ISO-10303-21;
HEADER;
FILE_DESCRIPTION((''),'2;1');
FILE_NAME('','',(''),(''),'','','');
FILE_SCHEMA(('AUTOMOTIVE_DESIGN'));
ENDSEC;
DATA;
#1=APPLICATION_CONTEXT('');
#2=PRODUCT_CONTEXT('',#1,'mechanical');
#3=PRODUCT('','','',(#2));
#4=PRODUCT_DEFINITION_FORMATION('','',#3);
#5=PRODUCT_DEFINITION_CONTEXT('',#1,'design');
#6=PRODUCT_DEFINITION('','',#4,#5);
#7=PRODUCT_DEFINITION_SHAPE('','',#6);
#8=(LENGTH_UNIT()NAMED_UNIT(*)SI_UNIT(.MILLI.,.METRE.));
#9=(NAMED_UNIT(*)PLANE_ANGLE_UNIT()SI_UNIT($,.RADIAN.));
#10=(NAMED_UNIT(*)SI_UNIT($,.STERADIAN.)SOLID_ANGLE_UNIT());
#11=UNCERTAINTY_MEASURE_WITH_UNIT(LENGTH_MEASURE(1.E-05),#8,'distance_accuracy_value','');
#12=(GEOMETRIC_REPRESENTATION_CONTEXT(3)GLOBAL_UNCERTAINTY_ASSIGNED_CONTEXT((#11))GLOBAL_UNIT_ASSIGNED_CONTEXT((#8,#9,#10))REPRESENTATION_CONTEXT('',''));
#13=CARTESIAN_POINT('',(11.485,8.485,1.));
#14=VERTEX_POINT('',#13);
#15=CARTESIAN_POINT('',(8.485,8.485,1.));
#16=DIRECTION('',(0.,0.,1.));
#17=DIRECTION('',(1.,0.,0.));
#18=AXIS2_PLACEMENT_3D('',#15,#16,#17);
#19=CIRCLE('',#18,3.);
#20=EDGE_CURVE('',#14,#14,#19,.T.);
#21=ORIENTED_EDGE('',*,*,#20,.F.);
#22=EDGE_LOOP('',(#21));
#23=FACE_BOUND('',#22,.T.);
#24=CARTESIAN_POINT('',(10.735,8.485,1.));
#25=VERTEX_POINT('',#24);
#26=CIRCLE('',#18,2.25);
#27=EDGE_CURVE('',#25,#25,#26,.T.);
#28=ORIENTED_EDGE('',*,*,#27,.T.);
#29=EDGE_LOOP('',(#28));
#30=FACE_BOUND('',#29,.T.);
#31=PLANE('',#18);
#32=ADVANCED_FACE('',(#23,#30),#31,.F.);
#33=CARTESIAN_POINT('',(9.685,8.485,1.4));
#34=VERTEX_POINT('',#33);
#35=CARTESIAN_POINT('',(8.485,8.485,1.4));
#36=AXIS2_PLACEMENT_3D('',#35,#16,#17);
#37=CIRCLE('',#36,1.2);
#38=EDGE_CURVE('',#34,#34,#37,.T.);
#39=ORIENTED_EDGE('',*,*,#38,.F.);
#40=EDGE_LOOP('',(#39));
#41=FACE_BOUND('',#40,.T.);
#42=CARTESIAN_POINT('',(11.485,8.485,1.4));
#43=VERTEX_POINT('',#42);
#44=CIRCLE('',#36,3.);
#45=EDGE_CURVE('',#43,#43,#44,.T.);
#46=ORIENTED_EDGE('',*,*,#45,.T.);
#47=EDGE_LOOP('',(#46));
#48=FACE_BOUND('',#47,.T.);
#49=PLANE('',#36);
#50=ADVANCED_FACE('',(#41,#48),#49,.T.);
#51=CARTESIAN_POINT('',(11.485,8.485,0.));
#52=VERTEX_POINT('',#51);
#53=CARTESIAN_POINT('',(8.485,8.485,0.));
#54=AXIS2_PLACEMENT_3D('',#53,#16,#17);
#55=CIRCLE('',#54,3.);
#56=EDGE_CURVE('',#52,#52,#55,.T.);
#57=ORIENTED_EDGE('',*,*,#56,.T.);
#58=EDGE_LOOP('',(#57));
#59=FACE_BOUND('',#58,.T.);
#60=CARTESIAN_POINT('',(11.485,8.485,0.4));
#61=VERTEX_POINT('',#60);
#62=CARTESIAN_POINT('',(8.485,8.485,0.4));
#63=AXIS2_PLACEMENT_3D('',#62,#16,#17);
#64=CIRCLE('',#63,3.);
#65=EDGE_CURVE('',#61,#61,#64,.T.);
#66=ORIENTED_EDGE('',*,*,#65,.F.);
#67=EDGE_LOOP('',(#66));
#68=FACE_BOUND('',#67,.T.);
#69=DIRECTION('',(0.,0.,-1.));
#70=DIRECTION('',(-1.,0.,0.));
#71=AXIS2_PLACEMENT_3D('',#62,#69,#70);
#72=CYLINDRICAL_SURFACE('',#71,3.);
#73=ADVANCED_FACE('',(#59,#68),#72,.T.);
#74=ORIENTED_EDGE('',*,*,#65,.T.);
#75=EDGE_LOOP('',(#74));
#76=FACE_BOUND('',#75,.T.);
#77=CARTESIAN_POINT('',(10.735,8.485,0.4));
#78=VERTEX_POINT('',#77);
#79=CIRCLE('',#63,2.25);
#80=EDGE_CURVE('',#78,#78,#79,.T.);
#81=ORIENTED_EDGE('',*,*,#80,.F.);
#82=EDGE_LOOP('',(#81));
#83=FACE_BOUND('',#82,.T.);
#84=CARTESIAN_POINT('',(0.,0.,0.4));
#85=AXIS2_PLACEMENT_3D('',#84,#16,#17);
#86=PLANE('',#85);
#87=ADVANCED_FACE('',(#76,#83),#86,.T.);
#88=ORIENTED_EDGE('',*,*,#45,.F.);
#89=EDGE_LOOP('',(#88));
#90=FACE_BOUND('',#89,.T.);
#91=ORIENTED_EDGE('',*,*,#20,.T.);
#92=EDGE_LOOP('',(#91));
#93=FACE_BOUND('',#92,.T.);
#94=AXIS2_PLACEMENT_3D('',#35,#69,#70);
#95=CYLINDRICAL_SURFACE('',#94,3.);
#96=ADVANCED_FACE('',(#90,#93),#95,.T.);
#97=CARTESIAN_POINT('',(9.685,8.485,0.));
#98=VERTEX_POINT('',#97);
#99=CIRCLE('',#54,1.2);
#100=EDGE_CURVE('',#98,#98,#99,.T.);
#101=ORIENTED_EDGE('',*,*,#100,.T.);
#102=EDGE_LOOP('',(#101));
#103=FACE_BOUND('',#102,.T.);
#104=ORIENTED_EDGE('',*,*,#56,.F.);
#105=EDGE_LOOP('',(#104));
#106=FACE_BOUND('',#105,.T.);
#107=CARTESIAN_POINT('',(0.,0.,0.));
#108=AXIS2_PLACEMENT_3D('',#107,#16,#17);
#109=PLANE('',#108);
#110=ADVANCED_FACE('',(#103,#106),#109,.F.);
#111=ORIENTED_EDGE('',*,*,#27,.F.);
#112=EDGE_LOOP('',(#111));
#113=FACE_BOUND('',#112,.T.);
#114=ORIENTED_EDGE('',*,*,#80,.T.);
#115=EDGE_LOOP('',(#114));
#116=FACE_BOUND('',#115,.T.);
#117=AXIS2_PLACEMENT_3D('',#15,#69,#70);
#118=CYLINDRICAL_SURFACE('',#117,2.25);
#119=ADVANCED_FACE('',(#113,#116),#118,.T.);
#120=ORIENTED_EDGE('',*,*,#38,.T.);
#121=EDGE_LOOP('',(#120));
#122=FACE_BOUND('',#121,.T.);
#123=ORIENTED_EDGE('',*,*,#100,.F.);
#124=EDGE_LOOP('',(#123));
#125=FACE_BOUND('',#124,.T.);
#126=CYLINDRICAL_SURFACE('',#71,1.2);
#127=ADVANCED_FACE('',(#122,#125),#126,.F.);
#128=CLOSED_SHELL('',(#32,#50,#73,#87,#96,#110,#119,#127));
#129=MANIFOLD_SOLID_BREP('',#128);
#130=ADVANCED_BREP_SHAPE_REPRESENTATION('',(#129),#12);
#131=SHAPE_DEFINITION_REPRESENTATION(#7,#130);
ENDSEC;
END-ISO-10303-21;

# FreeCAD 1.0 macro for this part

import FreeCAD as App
import Part
import Sketcher

V = App.Vector
Q = App.Units.Quantity

doc = App.newDocument("Part")
body = doc.addObject("PartDesign::Body", "Body")

# Sketch on XY plane
sketch1 = body.newObject("Sketcher::SketchObject", "Sketch")
sketch1.AttachmentSupport = (doc.getObject("XY_Plane"), [""])
sketch1.MapMode = "FlatFace"
sketch1.addGeometry([
    Part.Circle(V(8.5, 8.5, 0), V(0, 0, 1), 3),
    Part.Circle(V(8.5, 8.5, 0), V(0, 0, 1), 1.2),
], False)
sketch1.addConstraint([
    Sketcher.Constraint("Coincident", 1, 3, 0, 3),
    Sketcher.Constraint("Diameter", 0, Q("6 mm")),
    Sketcher.Constraint("Diameter", 1, Q("2.4 mm")),
    Sketcher.Constraint("DistanceX", -1, 1, 0, 3, Q("8.485 mm")),
    Sketcher.Constraint("DistanceY", -1, 1, 0, 3, Q("8.485 mm")),
])
pad1 = body.newObject("PartDesign::Pad", "Pad")
pad1.Profile = sketch1
pad1.Length = 0.4

# Sketch on XY plane
sketch2 = body.newObject("Sketcher::SketchObject", "Sketch001")
sketch2.AttachmentSupport = (doc.getObject("XY_Plane"), [""])
sketch2.MapMode = "FlatFace"
sketch2.AttachmentOffset = App.Placement(V(0, 0, 0.4), App.Rotation())
sketch2.addGeometry([
    Part.Circle(V(8.5, 8.5, 0), V(0, 0, 1), 2.2),
    Part.Circle(V(8.5, 8.5, 0), V(0, 0, 1), 1.2),
], False)
sketch2.addConstraint([
    Sketcher.Constraint("Coincident", 1, 3, 0, 3),
    Sketcher.Constraint("Diameter", 0, Q("4.5 mm")),
    Sketcher.Constraint("Diameter", 1, Q("2.4 mm")),
    Sketcher.Constraint("DistanceX", -1, 1, 0, 3, Q("8.485 mm")),
    Sketcher.Constraint("DistanceY", -1, 1, 0, 3, Q("8.485 mm")),
])
pad2 = body.newObject("PartDesign::Pad", "Pad001")
pad2.Profile = sketch2
pad2.Length = 0.6

# Sketch on XY plane
sketch3 = body.newObject("Sketcher::SketchObject", "Sketch002")
sketch3.AttachmentSupport = (doc.getObject("XY_Plane"), [""])
sketch3.MapMode = "FlatFace"
sketch3.AttachmentOffset = App.Placement(V(0, 0, 1), App.Rotation())
sketch3.addGeometry([
    Part.Circle(V(8.5, 8.5, 0), V(0, 0, 1), 3),
    Part.Circle(V(8.5, 8.5, 0), V(0, 0, 1), 1.2),
], False)
sketch3.addConstraint([
    Sketcher.Constraint("Coincident", 1, 3, 0, 3),
    Sketcher.Constraint("Diameter", 0, Q("6 mm")),
    Sketcher.Constraint("Diameter", 1, Q("2.4 mm")),
    Sketcher.Constraint("DistanceX", -1, 1, 0, 3, Q("8.485 mm")),
    Sketcher.Constraint("DistanceY", -1, 1, 0, 3, Q("8.485 mm")),
])
pad3 = body.newObject("PartDesign::Pad", "Pad002")
pad3.Profile = sketch3
pad3.Length = 0.4

doc.recompute()
